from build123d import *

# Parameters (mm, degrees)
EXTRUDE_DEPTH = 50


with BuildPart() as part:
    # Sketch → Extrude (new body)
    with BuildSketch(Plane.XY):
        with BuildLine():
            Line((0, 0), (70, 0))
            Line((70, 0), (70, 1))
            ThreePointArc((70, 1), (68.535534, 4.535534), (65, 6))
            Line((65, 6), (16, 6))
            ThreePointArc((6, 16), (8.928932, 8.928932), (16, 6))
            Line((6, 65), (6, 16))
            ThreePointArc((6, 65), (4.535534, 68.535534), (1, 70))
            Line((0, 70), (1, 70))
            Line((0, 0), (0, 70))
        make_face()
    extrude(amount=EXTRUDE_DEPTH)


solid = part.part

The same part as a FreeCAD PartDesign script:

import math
import FreeCAD as App
import Part
import Sketcher

doc = App.newDocument("Part")
body = doc.addObject("PartDesign::Body", "Body")

# Sketch on XY plane
sketch1 = body.newObject("Sketcher::SketchObject", "Sketch")
sketch1.AttachmentSupport = (doc.getObject("XY_Plane"), [""])
sketch1.MapMode = "FlatFace"
sketch1.addGeometry([
    Part.LineSegment(App.Vector(0, 0, 0), App.Vector(70, 0, 0)),  # 0
    Part.LineSegment(App.Vector(70, 0, 0), App.Vector(70, 1, 0)),  # 1
    Part.ArcOfCircle(Part.Circle(App.Vector(65, 1, 0), App.Vector(0, 0, 1), 5), math.radians(0), math.radians(90)),  # 2
    Part.LineSegment(App.Vector(65, 6, 0), App.Vector(16, 6, 0)),  # 3
    Part.ArcOfCircle(Part.Circle(App.Vector(16, 16, 0), App.Vector(0, 0, 1), 10), math.radians(180), math.radians(270)),  # 4
    Part.LineSegment(App.Vector(6, 16, 0), App.Vector(6, 65, 0)),  # 5
    Part.ArcOfCircle(Part.Circle(App.Vector(1, 65, 0), App.Vector(0, 0, 1), 5), math.radians(0), math.radians(90)),  # 6
    Part.LineSegment(App.Vector(1, 70, 0), App.Vector(0, 70, 0)),  # 7
    Part.LineSegment(App.Vector(0, 70, 0), App.Vector(0, 0, 0)),  # 8
], False)
sketch1.addConstraint([
    Sketcher.Constraint("Coincident", 0, 2, 1, 1),
    Sketcher.Constraint("Tangent", 1, 2, 2, 1),
    Sketcher.Constraint("Tangent", 2, 2, 3, 1),
    Sketcher.Constraint("Tangent", 3, 2, 4, 2),
    Sketcher.Constraint("Tangent", 4, 1, 5, 1),
    Sketcher.Constraint("Tangent", 5, 2, 6, 1),
    Sketcher.Constraint("Tangent", 6, 2, 7, 1),
    Sketcher.Constraint("Coincident", 7, 2, 8, 1),
    Sketcher.Constraint("Coincident", 8, 2, 0, 1),
    Sketcher.Constraint("Horizontal", 0),
    Sketcher.Constraint("Vertical", 1),
    Sketcher.Constraint("Horizontal", 3),
    Sketcher.Constraint("Vertical", 5),
    Sketcher.Constraint("Horizontal", 7),
    Sketcher.Constraint("Vertical", 8),
    Sketcher.Constraint("Coincident", 8, 2, -1, 1),
    Sketcher.Constraint("Equal", 2, 6),
    Sketcher.Constraint("Equal", 7, 1),
    Sketcher.Constraint("Equal", 3, 5),
    Sketcher.Constraint("Radius", 2, 5.0),
    Sketcher.Constraint("Radius", 4, 9.999999),
    Sketcher.Constraint("DistanceX", 0, 1, 0, 2, 70.0),
    Sketcher.Constraint("DistanceX", 3, 2, 3, 1, 49.0),
])
pad1 = body.newObject("PartDesign::Pad", "Pad")
pad1.Profile = sketch1
pad1.Length = 50

doc.recompute()
